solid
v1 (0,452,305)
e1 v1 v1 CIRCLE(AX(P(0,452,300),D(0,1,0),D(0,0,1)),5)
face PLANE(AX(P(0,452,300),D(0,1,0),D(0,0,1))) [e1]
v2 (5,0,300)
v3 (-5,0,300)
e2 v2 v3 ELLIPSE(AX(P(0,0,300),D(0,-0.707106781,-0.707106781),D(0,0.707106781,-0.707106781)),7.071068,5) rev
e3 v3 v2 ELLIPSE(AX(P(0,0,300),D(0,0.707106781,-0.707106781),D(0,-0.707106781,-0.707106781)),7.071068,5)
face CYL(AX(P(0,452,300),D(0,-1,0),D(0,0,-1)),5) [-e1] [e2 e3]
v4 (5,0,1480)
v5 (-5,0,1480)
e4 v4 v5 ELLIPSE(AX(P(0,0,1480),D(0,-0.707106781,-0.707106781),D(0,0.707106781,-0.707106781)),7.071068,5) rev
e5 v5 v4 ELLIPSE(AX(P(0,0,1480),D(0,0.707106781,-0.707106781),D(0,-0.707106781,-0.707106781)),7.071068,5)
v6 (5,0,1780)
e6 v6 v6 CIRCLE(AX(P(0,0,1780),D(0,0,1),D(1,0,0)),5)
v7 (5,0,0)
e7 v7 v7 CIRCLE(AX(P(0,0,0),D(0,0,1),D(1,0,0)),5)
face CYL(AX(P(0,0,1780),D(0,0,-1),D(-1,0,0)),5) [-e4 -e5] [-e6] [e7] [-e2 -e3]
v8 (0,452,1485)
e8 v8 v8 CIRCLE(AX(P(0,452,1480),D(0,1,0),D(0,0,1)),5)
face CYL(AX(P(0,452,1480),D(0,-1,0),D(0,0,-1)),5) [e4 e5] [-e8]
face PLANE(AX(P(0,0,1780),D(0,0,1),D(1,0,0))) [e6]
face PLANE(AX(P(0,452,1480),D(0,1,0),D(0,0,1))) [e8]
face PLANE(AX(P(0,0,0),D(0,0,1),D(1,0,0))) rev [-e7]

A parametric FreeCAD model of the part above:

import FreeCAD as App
import Part
import Sketcher

V = App.Vector
Q = App.Units.Quantity

doc = App.newDocument("Part")
body = doc.addObject("PartDesign::Body", "Body")

# Sketch on XY plane
sketch1 = doc.addObject("Sketcher::SketchObject", "Sketch")
body.addObject(sketch1)
sketch1.AttachmentSupport = (doc.XY_Plane, [""])
sketch1.MapMode = "FlatFace"
sketch1.addGeometry(Part.Circle(V(0, 0, 0), V(0, 0, 1), 5), False)
sketch1.addConstraint([
    Sketcher.Constraint("Coincident", 0, 3, -1, 1),
    Sketcher.Constraint("Diameter", 0, Q("10 mm")),
])
pad1 = doc.addObject("PartDesign::Pad", "Pad")
body.addObject(pad1)
pad1.Profile = sketch1
pad1.Length = 1780

# Sketch on XZ plane
sketch2 = doc.addObject("Sketcher::SketchObject", "Sketch001")
body.addObject(sketch2)
sketch2.AttachmentSupport = (doc.XZ_Plane, [""])
sketch2.MapMode = "FlatFace"
sketch2.addGeometry([
    Part.Circle(V(0, 300, 0), V(0, 0, 1), 5),
    Part.Circle(V(0, 1480, 0), V(0, 0, 1), 5),
], False)
sketch2.addConstraint([
    Sketcher.Constraint("Equal", 0, 1),
    Sketcher.Constraint("PointOnObject", 0, 3, -2),
    Sketcher.Constraint("PointOnObject", 1, 3, -2),
    Sketcher.Constraint("Diameter", 0, Q("10 mm")),
    Sketcher.Constraint("DistanceY", -1, 1, 0, 3, Q("300 mm")),
    Sketcher.Constraint("DistanceY", -1, 1, 1, 3, Q("1480 mm")),
])
pad2 = doc.addObject("PartDesign::Pad", "Pad001")
body.addObject(pad2)
pad2.Profile = sketch2
pad2.Length = 452
pad2.Reversed = True

doc.recompute()
